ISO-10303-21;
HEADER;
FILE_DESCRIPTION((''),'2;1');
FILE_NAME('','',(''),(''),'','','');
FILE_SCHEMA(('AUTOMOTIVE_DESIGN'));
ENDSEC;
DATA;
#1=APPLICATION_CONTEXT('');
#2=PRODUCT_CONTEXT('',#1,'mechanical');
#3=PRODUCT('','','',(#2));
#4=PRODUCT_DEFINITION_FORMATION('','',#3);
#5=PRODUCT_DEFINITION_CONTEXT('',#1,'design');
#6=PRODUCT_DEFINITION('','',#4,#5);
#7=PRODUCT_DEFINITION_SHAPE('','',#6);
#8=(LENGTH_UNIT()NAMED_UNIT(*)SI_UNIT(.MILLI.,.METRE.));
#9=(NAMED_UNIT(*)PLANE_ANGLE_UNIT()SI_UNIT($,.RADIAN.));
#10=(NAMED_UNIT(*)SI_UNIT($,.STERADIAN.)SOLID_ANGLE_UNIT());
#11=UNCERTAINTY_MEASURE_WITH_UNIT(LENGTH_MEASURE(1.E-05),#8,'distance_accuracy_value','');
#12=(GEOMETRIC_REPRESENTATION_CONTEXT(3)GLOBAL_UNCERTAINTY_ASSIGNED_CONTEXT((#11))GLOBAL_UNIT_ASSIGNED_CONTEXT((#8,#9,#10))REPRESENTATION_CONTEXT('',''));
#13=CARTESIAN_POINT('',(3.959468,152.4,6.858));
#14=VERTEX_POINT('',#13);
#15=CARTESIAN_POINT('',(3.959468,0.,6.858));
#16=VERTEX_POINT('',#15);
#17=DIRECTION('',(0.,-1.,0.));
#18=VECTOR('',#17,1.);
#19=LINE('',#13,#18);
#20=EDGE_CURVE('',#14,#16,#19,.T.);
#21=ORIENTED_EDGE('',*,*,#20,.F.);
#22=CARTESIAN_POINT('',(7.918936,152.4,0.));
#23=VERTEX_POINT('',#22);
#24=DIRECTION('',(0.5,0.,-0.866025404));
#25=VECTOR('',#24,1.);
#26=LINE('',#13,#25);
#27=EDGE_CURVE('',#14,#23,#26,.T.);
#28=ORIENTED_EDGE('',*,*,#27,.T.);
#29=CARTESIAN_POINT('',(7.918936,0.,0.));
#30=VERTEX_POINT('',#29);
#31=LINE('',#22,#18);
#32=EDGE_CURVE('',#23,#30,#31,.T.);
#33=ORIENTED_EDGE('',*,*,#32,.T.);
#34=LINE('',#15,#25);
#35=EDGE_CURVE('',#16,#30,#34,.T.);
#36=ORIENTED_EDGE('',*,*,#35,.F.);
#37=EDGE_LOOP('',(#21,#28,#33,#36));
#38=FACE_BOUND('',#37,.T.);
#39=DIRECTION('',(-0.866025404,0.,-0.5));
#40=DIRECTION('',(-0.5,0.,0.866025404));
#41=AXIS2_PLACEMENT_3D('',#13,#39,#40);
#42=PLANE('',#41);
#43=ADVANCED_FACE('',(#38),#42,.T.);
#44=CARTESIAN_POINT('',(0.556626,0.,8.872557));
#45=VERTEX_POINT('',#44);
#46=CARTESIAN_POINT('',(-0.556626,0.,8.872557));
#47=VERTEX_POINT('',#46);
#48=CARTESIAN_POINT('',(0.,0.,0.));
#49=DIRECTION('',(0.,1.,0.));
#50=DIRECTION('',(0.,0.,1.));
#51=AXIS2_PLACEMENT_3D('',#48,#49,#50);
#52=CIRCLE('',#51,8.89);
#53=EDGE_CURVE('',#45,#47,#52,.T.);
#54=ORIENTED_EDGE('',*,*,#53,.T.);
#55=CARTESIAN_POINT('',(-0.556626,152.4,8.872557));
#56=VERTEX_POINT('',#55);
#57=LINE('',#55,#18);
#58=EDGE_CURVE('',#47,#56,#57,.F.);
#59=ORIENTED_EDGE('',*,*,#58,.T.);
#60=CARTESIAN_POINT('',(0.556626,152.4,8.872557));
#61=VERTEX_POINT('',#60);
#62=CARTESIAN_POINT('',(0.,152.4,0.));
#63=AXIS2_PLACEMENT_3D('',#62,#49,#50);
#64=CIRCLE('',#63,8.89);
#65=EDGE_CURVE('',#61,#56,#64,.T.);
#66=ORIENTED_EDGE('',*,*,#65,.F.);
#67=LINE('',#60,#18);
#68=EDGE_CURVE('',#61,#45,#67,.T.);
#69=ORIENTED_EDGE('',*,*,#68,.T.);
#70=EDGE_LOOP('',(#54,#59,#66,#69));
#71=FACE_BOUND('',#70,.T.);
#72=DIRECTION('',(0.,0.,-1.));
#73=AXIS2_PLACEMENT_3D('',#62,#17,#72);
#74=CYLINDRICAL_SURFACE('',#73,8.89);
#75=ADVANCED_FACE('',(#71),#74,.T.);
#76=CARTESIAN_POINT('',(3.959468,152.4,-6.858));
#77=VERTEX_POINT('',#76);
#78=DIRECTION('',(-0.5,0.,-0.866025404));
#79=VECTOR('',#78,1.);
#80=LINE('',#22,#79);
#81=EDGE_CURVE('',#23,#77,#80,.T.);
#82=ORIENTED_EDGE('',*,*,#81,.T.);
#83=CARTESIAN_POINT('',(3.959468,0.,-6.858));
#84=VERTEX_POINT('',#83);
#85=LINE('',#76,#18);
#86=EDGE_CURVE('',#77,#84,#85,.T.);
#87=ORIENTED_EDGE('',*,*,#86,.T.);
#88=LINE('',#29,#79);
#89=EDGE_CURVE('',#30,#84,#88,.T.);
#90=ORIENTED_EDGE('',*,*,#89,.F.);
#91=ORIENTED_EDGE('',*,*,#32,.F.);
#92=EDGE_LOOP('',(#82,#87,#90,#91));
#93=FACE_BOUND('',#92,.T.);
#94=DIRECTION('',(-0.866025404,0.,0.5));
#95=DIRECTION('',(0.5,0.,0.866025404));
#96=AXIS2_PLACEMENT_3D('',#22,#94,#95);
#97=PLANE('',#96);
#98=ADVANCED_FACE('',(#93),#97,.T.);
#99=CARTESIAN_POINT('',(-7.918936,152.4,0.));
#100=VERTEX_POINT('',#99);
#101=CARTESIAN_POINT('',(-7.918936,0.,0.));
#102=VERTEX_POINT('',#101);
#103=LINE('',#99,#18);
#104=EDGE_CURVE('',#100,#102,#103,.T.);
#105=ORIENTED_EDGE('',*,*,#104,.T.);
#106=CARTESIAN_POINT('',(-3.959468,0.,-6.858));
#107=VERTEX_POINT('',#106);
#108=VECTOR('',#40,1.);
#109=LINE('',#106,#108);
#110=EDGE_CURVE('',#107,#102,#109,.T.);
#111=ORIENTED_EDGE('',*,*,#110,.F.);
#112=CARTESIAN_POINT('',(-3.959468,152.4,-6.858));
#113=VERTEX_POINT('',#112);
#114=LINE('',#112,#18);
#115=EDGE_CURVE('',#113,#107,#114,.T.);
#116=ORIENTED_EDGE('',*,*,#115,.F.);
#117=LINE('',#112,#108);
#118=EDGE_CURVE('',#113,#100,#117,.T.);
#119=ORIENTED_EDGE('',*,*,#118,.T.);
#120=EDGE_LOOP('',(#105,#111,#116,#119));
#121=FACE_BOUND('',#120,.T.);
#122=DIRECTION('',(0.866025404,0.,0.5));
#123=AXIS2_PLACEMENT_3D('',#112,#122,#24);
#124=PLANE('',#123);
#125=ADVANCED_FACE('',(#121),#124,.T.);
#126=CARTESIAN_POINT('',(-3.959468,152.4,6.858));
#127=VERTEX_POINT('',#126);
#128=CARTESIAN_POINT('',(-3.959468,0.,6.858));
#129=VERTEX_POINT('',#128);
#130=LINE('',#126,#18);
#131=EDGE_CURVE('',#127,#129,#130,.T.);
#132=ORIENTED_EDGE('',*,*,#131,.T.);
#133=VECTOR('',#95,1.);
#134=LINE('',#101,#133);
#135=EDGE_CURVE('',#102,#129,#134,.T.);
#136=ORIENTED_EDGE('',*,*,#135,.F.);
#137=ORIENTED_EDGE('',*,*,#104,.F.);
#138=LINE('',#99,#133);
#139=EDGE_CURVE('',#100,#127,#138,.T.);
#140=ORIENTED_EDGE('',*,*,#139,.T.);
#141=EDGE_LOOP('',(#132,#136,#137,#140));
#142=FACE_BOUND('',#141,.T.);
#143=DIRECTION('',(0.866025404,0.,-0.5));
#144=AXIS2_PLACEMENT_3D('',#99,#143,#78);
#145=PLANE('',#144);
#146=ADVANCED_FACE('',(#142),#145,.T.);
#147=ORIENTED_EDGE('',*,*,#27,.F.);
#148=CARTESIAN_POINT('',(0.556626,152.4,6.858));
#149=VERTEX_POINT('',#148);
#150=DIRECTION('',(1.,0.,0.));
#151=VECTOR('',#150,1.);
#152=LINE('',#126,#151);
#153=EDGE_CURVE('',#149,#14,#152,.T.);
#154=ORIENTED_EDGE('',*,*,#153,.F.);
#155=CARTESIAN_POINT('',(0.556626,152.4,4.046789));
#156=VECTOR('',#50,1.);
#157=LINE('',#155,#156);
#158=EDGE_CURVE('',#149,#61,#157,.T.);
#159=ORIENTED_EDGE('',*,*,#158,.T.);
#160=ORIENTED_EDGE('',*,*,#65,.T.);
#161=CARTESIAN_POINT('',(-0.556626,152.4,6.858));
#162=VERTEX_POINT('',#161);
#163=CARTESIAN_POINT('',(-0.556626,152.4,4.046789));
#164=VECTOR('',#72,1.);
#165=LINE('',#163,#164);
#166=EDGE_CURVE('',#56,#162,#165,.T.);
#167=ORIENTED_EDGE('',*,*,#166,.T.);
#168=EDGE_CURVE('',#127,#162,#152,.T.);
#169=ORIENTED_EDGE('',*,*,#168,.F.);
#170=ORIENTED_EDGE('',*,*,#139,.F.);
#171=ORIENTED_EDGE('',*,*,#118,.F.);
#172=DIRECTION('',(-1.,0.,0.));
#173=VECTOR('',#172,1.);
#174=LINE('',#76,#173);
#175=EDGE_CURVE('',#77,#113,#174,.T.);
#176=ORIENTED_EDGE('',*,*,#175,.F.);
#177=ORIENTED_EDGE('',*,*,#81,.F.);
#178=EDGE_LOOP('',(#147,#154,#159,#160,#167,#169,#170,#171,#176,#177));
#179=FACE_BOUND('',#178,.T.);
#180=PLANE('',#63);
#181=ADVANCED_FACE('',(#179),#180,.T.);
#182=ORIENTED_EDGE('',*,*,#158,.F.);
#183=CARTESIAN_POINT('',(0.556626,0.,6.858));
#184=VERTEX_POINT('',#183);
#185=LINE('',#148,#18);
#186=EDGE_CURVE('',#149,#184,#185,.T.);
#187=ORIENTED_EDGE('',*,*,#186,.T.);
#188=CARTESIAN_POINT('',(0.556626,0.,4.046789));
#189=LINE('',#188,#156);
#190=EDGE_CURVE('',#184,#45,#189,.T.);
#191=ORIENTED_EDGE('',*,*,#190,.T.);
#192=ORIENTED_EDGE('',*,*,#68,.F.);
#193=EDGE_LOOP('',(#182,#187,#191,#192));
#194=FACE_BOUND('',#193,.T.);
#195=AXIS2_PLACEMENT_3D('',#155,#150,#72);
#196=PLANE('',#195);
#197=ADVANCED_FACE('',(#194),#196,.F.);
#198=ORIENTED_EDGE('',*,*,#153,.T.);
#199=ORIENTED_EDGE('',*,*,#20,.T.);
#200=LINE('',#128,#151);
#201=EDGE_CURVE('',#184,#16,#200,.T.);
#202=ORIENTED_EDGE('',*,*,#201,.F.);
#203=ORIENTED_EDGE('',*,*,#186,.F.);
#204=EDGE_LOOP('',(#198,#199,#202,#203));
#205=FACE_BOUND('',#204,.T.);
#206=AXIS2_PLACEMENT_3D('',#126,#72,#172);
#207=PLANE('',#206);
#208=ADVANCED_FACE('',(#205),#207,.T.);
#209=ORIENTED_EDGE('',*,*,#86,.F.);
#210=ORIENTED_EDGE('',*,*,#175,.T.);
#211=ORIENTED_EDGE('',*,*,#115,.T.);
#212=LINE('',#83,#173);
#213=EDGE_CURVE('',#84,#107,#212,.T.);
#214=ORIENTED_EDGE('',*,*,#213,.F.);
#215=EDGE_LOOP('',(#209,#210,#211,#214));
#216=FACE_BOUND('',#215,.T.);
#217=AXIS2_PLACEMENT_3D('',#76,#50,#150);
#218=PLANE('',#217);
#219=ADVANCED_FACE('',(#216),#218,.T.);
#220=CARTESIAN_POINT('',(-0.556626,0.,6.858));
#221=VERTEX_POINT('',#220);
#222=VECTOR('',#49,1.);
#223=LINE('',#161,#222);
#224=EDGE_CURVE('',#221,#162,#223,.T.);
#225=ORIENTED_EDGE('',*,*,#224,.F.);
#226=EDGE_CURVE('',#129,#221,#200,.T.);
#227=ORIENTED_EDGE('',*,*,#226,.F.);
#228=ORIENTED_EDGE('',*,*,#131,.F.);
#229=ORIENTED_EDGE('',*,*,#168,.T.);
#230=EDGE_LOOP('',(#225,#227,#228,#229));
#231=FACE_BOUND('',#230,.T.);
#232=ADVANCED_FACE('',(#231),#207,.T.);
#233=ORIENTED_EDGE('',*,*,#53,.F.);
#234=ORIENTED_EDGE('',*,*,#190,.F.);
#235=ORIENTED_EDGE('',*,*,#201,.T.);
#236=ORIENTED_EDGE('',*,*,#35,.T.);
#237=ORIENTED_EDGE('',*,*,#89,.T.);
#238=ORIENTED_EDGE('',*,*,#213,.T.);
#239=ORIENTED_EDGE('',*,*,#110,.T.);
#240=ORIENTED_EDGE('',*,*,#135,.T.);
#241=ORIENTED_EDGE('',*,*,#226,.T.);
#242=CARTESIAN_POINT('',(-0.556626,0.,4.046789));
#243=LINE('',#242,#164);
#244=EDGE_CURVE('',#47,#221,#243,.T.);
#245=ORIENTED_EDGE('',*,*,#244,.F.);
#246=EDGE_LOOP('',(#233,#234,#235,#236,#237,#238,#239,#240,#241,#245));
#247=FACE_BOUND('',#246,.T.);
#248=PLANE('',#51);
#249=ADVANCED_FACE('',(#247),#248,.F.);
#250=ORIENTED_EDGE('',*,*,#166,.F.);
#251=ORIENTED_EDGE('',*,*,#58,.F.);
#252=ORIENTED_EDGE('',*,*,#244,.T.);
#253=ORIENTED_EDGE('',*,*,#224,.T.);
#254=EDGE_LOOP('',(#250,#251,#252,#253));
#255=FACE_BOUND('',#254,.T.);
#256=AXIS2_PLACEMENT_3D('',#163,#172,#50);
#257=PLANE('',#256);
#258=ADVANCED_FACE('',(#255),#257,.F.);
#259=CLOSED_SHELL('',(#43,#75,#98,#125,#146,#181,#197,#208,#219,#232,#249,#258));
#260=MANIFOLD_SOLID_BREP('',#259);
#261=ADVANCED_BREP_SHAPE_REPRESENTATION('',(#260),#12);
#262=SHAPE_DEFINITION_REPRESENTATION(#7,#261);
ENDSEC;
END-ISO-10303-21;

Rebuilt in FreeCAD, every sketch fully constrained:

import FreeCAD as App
import Part
import Sketcher
from FreeCAD import Vector
Q = App.Units.Quantity


def add_polygon(sketch, points):
    """Adds a closed chain of lines whose ends are joined by coincident constraints."""
    first, n = sketch.GeometryCount, len(points)
    for a, b in zip(points, points[1:] + points[:1]):
        sketch.addGeometry(Part.LineSegment(App.Vector(*a, 0), App.Vector(*b, 0)), False)
    for i in range(n):
        sketch.addConstraint(Sketcher.Constraint("Coincident", first + i, 2, first + (i + 1) % n, 1))

doc = App.newDocument("Part")
body = doc.addObject("PartDesign::Body", "Body")

sketch1 = doc.addObject("Sketcher::SketchObject", "Sketch")
body.addObject(sketch1)
sketch1.AttachmentSupport = (doc.XZ_Plane, [""])
sketch1.MapMode = "FlatFace"
sketch1.addGeometry(Part.Circle(Vector(0, 0, 0), Vector(0, 0, 1), 9), False)
add_polygon(sketch1, [(8, 0), (4, 7), (-4, 7), (-8, 0), (-4, -7), (4, -7)])
sketch1.addConstraint([
    Sketcher.Constraint("Horizontal", 2),
    Sketcher.Constraint("Horizontal", 5),
    Sketcher.Constraint("Coincident", 0, 3, -1, 1),
    Sketcher.Constraint("Symmetric", 1, 2, 4, 2, -1, 1),
    Sketcher.Constraint("Symmetric", 3, 2, 6, 2, -1, 1),
    Sketcher.Constraint("PointOnObject", 3, 2, -1),
    Sketcher.Constraint("Parallel", 3, 6),
    Sketcher.Constraint("Vertical", 2, 2, 4, 2),
    Sketcher.Constraint("Diameter", 0, Q("0.7 in")),
    Sketcher.Constraint("Angle", 1, Q("120 deg")),
    Sketcher.Constraint("DistanceY", -1, 1, 1, 2, Q("0.27 in")),
    Sketcher.Constraint("DistanceX", 2, 2, 2, 1, 7.918936),
])
pad1 = doc.addObject("PartDesign::Pad", "Pad")
body.addObject(pad1)
pad1.Profile = sketch1
pad1.Length = Q("6 in")
pad1.Reversed = True

sketch2 = doc.addObject("Sketcher::SketchObject", "Sketch001")
body.addObject(sketch2)
sketch2.AttachmentSupport = (doc.XZ_Plane, [""])
sketch2.MapMode = "FlatFace"
add_polygon(sketch2, [(0.6, 4), (0.6, 12.7), (-0.6, 12.7), (-0.6, 4)])
sketch2.addConstraint([
    Sketcher.Constraint("Vertical", 0),
    Sketcher.Constraint("Horizontal", 1),
    Sketcher.Constraint("Vertical", 2),
    Sketcher.Constraint("Horizontal", 3),
    Sketcher.Constraint("DistanceX", 1, 2, 1, 1, 1.113252),
    Sketcher.Constraint("DistanceY", 0, 1, 0, 2, 8.614314),
    Sketcher.Constraint("DistanceY", -1, 1, 2, 2, 4.046789),
    Sketcher.Constraint("DistanceX", -1, 1, 0, 2, 0.556626),
])
pocket1 = doc.addObject("PartDesign::Pocket", "Pocket")
body.addObject(pocket1)
pocket1.Profile = sketch2
pocket1.Type = "ThroughAll"

doc.recompute()
